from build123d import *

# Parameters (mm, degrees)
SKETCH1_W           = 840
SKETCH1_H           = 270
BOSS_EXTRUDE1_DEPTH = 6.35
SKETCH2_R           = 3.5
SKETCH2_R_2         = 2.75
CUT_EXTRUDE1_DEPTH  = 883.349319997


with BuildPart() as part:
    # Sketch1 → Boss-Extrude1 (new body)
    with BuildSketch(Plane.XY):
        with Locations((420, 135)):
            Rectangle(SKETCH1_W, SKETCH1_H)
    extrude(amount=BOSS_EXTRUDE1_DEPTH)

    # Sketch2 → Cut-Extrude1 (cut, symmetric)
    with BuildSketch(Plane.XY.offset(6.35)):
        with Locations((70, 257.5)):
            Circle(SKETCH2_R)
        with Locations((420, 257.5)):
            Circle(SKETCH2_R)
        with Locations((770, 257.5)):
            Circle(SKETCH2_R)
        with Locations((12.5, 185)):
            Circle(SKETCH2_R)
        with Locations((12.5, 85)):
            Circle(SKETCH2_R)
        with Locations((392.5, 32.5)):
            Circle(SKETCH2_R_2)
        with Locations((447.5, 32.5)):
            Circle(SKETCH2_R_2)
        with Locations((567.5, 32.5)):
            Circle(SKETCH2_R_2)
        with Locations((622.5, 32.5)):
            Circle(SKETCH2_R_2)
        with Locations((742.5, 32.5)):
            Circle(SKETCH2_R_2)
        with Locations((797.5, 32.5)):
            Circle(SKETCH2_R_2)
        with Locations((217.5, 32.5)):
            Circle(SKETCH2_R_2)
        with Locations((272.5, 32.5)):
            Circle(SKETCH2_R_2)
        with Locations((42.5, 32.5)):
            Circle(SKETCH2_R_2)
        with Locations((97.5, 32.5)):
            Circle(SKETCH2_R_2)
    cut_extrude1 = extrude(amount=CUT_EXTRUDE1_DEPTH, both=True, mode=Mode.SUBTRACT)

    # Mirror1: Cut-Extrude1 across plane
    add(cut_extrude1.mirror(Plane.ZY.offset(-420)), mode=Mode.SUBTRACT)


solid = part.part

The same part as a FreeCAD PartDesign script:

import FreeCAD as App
import Part
import Sketcher

V = App.Vector


def add_polygon(sketch, points):
    """Adds a closed chain of lines whose ends are joined by coincident constraints."""
    first, n = sketch.GeometryCount, len(points)
    for a, b in zip(points, points[1:] + points[:1]):
        sketch.addGeometry(Part.LineSegment(App.Vector(*a, 0), App.Vector(*b, 0)), False)
    for i in range(n):
        sketch.addConstraint(Sketcher.Constraint("Coincident", first + i, 2, first + (i + 1) % n, 1))

doc = App.newDocument("Part")
body = doc.addObject("PartDesign::Body", "Body")

# Sketch on XY plane
sketch1 = doc.addObject("Sketcher::SketchObject", "Sketch")
body.addObject(sketch1)
sketch1.AttachmentSupport = (doc.XY_Plane, [""])
sketch1.MapMode = "FlatFace"
add_polygon(sketch1, [(0, 270), (0, 0), (840, 0), (840, 270)])  # lines 0-3
sketch1.addConstraint([
    Sketcher.Constraint("Vertical", 0),
    Sketcher.Constraint("Horizontal", 1),
    Sketcher.Constraint("Vertical", 2),
    Sketcher.Constraint("Horizontal", 3),
    Sketcher.Constraint("Coincident", 0, 2, -1, 1),
    Sketcher.Constraint("DistanceX", 1, 1, 1, 2, 840.0),
    Sketcher.Constraint("DistanceY", 0, 2, 0, 1, 270.0),
])
pad1 = doc.addObject("PartDesign::Pad", "Pad")
body.addObject(pad1)
pad1.Profile = sketch1
pad1.Length = 6.35

# Sketch on XY plane
sketch2 = doc.addObject("Sketcher::SketchObject", "Sketch001")
body.addObject(sketch2)
sketch2.AttachmentSupport = (doc.XY_Plane, [""])
sketch2.MapMode = "FlatFace"
sketch2.AttachmentOffset = App.Placement(V(0, 0, 6.35), App.Rotation())
sketch2.addGeometry([
    Part.Circle(V(70, 257.5, 0), V(0, 0, 1), 3.5),  # 0
    Part.Circle(V(420, 257.5, 0), V(0, 0, 1), 3.5),  # 1
    Part.Circle(V(770, 257.5, 0), V(0, 0, 1), 3.5),  # 2
    Part.Circle(V(12.5, 185, 0), V(0, 0, 1), 3.5),  # 3
    Part.Circle(V(12.5, 85, 0), V(0, 0, 1), 3.5),  # 4
    Part.Circle(V(392.5, 32.5, 0), V(0, 0, 1), 2.8),  # 5
    Part.Circle(V(447.5, 32.5, 0), V(0, 0, 1), 2.8),  # 6
    Part.Circle(V(567.5, 32.5, 0), V(0, 0, 1), 2.8),  # 7
    Part.Circle(V(622.5, 32.5, 0), V(0, 0, 1), 2.8),  # 8
    Part.Circle(V(742.5, 32.5, 0), V(0, 0, 1), 2.8),  # 9
    Part.Circle(V(797.5, 32.5, 0), V(0, 0, 1), 2.8),  # 10
    Part.Circle(V(217.5, 32.5, 0), V(0, 0, 1), 2.8),  # 11
    Part.Circle(V(272.5, 32.5, 0), V(0, 0, 1), 2.8),  # 12
    Part.Circle(V(42.5, 32.5, 0), V(0, 0, 1), 2.8),  # 13
    Part.Circle(V(97.5, 32.5, 0), V(0, 0, 1), 2.8),  # 14
], False)
sketch2.addConstraint([
    Sketcher.Constraint("Equal", 0, 1),
    Sketcher.Constraint("Equal", 1, 2),
    Sketcher.Constraint("Equal", 2, 3),
    Sketcher.Constraint("Equal", 3, 4),
    Sketcher.Constraint("Equal", 5, 6),
    Sketcher.Constraint("Equal", 6, 7),
    Sketcher.Constraint("Equal", 7, 8),
    Sketcher.Constraint("Equal", 8, 9),
    Sketcher.Constraint("Equal", 9, 10),
    Sketcher.Constraint("Equal", 10, 11),
    Sketcher.Constraint("Equal", 11, 12),
    Sketcher.Constraint("Equal", 12, 13),
    Sketcher.Constraint("Equal", 13, 14),
    Sketcher.Constraint("Horizontal", 0, 3, 1, 3),
    Sketcher.Constraint("Horizontal", 1, 3, 2, 3),
    Sketcher.Constraint("Horizontal", 5, 3, 6, 3),
    Sketcher.Constraint("Horizontal", 6, 3, 7, 3),
    Sketcher.Constraint("Horizontal", 7, 3, 8, 3),
    Sketcher.Constraint("Horizontal", 8, 3, 9, 3),
    Sketcher.Constraint("Horizontal", 9, 3, 10, 3),
    Sketcher.Constraint("Horizontal", 10, 3, 11, 3),
    Sketcher.Constraint("Horizontal", 11, 3, 12, 3),
    Sketcher.Constraint("Horizontal", 12, 3, 13, 3),
    Sketcher.Constraint("Horizontal", 13, 3, 14, 3),
    Sketcher.Constraint("Vertical", 3, 3, 4, 3),
    Sketcher.Constraint("Diameter", 0, 7.0),
    Sketcher.Constraint("Diameter", 5, 5.5),
    Sketcher.Constraint("DistanceX", -1, 1, 0, 3, 70.0),
    Sketcher.Constraint("DistanceX", -1, 1, 1, 3, 420.0),
    Sketcher.Constraint("DistanceX", -1, 1, 2, 3, 770.0),
    Sketcher.Constraint("DistanceY", -1, 1, 3, 3, 185.0),
    Sketcher.Constraint("DistanceY", -1, 1, 4, 3, 85.0),
    Sketcher.Constraint("DistanceY", 5, 3, 1, 3, 225.0),
    Sketcher.Constraint("DistanceX", 4, 3, 5, 3, 380.0),
    Sketcher.Constraint("DistanceX", 5, 3, 6, 3, 55.0),
    Sketcher.Constraint("DistanceX", 6, 3, 7, 3, 120.0),
    Sketcher.Constraint("DistanceX", 7, 3, 8, 3, 55.0),
    Sketcher.Constraint("DistanceX", 8, 3, 9, 3, 120.0),
    Sketcher.Constraint("DistanceX", 9, 3, 10, 3, 55.0),
    Sketcher.Constraint("DistanceX", 11, 3, 5, 3, 175.0),
    Sketcher.Constraint("DistanceX", 11, 3, 12, 3, 55.0),
    Sketcher.Constraint("DistanceX", 4, 3, 13, 3, 30.0),
    Sketcher.Constraint("DistanceX", 13, 3, 14, 3, 55.0),
    Sketcher.Constraint("DistanceY", -1, 1, 0, 3, 257.5),
    Sketcher.Constraint("DistanceX", -1, 1, 3, 3, 12.5),
])
pocket1 = doc.addObject("PartDesign::Pocket", "Pocket")
body.addObject(pocket1)
pocket1.Profile = sketch2
pocket1.Length = 1766.69864
pocket1.Midplane = True
doc.recompute()

datumplane = doc.addObject("PartDesign::Plane", "DatumPlane")
body.addObject(datumplane)
datumplane.AttachmentSupport = (doc.YZ_Plane, [""])
datumplane.MapMode = "FlatFace"
datumplane.AttachmentOffset = App.Placement(V(0, 0, 420), App.Rotation())
mirrored = doc.addObject("PartDesign::Mirrored", "Mirrored")
body.addObject(mirrored)
mirrored.Originals = [pocket1]
mirrored.MirrorPlane = (datumplane, [""])
body.Tip = mirrored

doc.recompute()
